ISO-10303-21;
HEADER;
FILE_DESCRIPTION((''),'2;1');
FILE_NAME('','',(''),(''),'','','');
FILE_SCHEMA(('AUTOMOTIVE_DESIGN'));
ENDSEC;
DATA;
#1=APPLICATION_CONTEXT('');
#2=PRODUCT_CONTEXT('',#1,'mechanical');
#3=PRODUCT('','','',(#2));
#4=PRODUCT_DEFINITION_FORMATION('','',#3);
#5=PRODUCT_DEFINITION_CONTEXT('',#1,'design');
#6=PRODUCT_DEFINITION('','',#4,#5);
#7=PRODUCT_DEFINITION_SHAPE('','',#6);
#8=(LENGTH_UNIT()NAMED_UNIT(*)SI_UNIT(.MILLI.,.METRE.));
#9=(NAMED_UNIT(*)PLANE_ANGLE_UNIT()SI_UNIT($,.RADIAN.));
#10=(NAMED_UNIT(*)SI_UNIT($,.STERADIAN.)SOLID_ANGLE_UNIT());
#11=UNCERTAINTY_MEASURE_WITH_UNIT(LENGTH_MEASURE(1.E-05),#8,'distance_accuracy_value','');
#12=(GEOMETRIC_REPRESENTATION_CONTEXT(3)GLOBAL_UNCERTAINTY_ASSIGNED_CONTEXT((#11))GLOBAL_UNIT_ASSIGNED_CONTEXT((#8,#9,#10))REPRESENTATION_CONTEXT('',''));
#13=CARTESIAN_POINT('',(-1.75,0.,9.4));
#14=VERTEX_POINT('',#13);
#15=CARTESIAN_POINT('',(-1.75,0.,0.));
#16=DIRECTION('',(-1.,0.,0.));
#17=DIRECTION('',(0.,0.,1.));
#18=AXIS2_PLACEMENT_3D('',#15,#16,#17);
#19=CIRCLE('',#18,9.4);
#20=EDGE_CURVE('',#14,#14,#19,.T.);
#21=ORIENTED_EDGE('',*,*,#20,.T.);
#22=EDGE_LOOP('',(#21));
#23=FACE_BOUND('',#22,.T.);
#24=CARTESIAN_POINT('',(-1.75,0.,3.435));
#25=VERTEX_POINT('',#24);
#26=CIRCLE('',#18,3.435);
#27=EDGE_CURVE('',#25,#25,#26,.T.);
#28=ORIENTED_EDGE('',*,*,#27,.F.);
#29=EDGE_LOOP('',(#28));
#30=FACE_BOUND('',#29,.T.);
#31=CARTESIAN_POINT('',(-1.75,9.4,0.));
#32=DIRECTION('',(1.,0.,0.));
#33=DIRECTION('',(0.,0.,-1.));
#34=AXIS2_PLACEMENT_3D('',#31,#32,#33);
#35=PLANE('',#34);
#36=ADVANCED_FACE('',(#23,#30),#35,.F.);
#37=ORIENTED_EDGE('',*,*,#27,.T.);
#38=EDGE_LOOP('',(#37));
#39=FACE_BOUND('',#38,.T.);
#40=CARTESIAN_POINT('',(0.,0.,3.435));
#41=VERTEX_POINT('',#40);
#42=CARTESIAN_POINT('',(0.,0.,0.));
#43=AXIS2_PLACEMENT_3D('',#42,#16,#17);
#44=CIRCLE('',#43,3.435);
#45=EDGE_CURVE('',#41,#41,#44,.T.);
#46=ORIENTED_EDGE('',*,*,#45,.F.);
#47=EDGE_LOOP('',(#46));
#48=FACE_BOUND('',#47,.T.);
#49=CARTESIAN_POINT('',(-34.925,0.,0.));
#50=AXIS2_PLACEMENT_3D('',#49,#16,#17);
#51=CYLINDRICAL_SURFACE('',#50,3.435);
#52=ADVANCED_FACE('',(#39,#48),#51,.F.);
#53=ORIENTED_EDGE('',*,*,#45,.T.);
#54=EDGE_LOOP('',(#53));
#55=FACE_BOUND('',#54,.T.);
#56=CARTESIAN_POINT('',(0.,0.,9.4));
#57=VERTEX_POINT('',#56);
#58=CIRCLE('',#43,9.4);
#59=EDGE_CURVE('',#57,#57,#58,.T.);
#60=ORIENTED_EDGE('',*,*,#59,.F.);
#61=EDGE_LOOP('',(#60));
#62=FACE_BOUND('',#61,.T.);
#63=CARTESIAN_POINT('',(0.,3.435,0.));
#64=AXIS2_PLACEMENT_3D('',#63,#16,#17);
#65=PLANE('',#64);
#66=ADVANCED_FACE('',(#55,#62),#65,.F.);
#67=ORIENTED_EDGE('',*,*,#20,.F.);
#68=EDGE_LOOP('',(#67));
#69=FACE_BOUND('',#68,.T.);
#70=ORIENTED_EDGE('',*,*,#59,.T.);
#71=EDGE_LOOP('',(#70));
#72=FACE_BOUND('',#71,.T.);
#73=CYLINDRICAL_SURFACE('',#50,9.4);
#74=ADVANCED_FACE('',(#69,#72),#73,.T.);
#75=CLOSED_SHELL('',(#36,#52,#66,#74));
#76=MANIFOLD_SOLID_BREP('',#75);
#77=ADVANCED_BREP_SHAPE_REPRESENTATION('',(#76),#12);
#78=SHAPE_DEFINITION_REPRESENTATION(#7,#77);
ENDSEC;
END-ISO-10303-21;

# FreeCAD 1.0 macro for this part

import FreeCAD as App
import Part
import Sketcher

doc = App.newDocument("Part")
body = doc.addObject("PartDesign::Body", "Body")

sketch1 = body.newObject("Sketcher::SketchObject", "Sketch")
sketch1.AttachmentSupport = (doc.getObject("XY_Plane"), [""])
sketch1.MapMode = "FlatFace"
sketch1.addGeometry([
    Part.LineSegment(App.Vector(-1.8, 9.4, 0), App.Vector(-1.8, 3.4, 0)),
    Part.LineSegment(App.Vector(-1.8, 3.4, 0), App.Vector(0, 3.4, 0)),
    Part.LineSegment(App.Vector(0, 3.4, 0), App.Vector(0, 9.4, 0)),
    Part.LineSegment(App.Vector(0, 9.4, 0), App.Vector(-1.8, 9.4, 0)),
], False)
sketch1.addConstraint([
    Sketcher.Constraint("Coincident", 0, 2, 1, 1),
    Sketcher.Constraint("Coincident", 1, 2, 2, 1),
    Sketcher.Constraint("Coincident", 2, 2, 3, 1),
    Sketcher.Constraint("Coincident", 3, 2, 0, 1),
    Sketcher.Constraint("Vertical", 0),
    Sketcher.Constraint("Horizontal", 1),
    Sketcher.Constraint("Vertical", 2),
    Sketcher.Constraint("Horizontal", 3),
    Sketcher.Constraint("PointOnObject", 1, 2, -2),
    Sketcher.Constraint("DistanceX", 1, 1, 1, 2, 1.75),
    Sketcher.Constraint("DistanceY", -1, 1, 2, 2, 9.4),
    Sketcher.Constraint("DistanceY", 0, 2, 0, 1, 5.965),
])
revolution = body.newObject("PartDesign::Revolution", "Revolution")
revolution.Profile = sketch1
revolution.ReferenceAxis = (sketch1, ["H_Axis"])
revolution.Angle = 360

doc.recompute()
